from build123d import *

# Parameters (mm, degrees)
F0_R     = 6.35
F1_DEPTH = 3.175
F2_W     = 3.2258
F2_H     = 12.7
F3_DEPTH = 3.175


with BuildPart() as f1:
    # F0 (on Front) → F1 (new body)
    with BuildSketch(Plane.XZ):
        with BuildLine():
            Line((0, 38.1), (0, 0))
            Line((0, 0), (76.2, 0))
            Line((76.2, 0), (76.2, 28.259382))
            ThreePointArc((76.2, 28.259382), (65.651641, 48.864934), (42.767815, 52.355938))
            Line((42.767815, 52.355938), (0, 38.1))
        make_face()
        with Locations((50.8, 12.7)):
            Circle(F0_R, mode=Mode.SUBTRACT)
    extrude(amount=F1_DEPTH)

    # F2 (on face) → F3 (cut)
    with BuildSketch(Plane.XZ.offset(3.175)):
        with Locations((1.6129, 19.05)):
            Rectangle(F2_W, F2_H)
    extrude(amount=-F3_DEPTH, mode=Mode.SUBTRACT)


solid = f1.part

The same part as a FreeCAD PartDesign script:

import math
import FreeCAD as App
import Part
import Sketcher
Q = App.Units.Quantity

doc = App.newDocument("Part")
body = doc.addObject("PartDesign::Body", "Body")

sketch1 = body.newObject("Sketcher::SketchObject", "Sketch")
sketch1.AttachmentSupport = (doc.getObject("XZ_Plane"), [""])
sketch1.MapMode = "FlatFace"
sketch1.addGeometry(Part.LineSegment(App.Vector(0, 38, 0), App.Vector(0, 0, 0)), False)
sketch1.addGeometry(Part.LineSegment(App.Vector(0, 0, 0), App.Vector(76, 0, 0)), False)
sketch1.addGeometry(Part.LineSegment(App.Vector(76, 0, 0), App.Vector(76, 28, 0)), False)
sketch1.addGeometry(Part.ArcOfCircle(Part.Circle(App.Vector(51, 28, 0), App.Vector(0, 0, 1), 25), math.radians(0), math.radians(108)), False)
sketch1.addGeometry(Part.LineSegment(App.Vector(43, 52, 0), App.Vector(0, 38, 0)), False)
sketch1.addGeometry(Part.Circle(App.Vector(51, 13, 0), App.Vector(0, 0, 1), 6), False)
sketch1.addConstraint(Sketcher.Constraint("Coincident", 0, 2, 1, 1))
sketch1.addConstraint(Sketcher.Constraint("Coincident", 1, 2, 2, 1))
sketch1.addConstraint(Sketcher.Constraint("Tangent", 2, 2, 3, 1))
sketch1.addConstraint(Sketcher.Constraint("Tangent", 3, 2, 4, 1))
sketch1.addConstraint(Sketcher.Constraint("Coincident", 4, 2, 0, 1))
sketch1.addConstraint(Sketcher.Constraint("Vertical", 0))
sketch1.addConstraint(Sketcher.Constraint("Horizontal", 1))
sketch1.addConstraint(Sketcher.Constraint("Vertical", 2))
sketch1.addConstraint(Sketcher.Constraint("Coincident", 0, 2, -1, 1))
sketch1.addConstraint(Sketcher.Constraint("Vertical", 3, 3, 5, 3))
sketch1.addConstraint(Sketcher.Constraint("Radius", 3, Q("1 in")))
sketch1.addConstraint(Sketcher.Constraint("Diameter", 5, Q("0.5 in")))
sketch1.addConstraint(Sketcher.Constraint("DistanceX", 1, 1, 1, 2, Q("3 in")))
sketch1.addConstraint(Sketcher.Constraint("DistanceY", 0, 2, 0, 1, Q("1.5 in")))
sketch1.addConstraint(Sketcher.Constraint("DistanceY", 5, 3, 4, 2, Q("1 in")))
sketch1.addConstraint(Sketcher.Constraint("DistanceY", 2, 1, 2, 2, Q("28.259382 mm")))
pad1 = body.newObject("PartDesign::Pad", "Pad")
pad1.Profile = sketch1
pad1.Length = Q("0.125 in")

sketch2 = body.newObject("Sketcher::SketchObject", "Sketch001")
sketch2.AttachmentSupport = (doc.getObject("XZ_Plane"), [""])
sketch2.MapMode = "FlatFace"
sketch2.AttachmentOffset = App.Placement(App.Vector(0, 0, 0.125 * 25.4), App.Rotation())
sketch2.addGeometry(Part.LineSegment(App.Vector(0, 25.4, 0), App.Vector(0, 12.7, 0)), False)
sketch2.addGeometry(Part.LineSegment(App.Vector(0, 12.7, 0), App.Vector(3.2, 12.7, 0)), False)
sketch2.addGeometry(Part.LineSegment(App.Vector(3.2, 12.7, 0), App.Vector(3.2, 25.4, 0)), False)
sketch2.addGeometry(Part.LineSegment(App.Vector(3.2, 25.4, 0), App.Vector(0, 25.4, 0)), False)
sketch2.addConstraint(Sketcher.Constraint("Coincident", 0, 2, 1, 1))
sketch2.addConstraint(Sketcher.Constraint("Coincident", 1, 2, 2, 1))
sketch2.addConstraint(Sketcher.Constraint("Coincident", 2, 2, 3, 1))
sketch2.addConstraint(Sketcher.Constraint("Coincident", 3, 2, 0, 1))
sketch2.addConstraint(Sketcher.Constraint("Vertical", 0))
sketch2.addConstraint(Sketcher.Constraint("Horizontal", 1))
sketch2.addConstraint(Sketcher.Constraint("Vertical", 2))
sketch2.addConstraint(Sketcher.Constraint("Horizontal", 3))
sketch2.addConstraint(Sketcher.Constraint("PointOnObject", 0, 2, -2))
sketch2.addConstraint(Sketcher.Constraint("DistanceY", 0, 2, 0, 1, Q("0.5 in")))
sketch2.addConstraint(Sketcher.Constraint("DistanceY", -1, 1, 2, 2, Q("1 in")))
sketch2.addConstraint(Sketcher.Constraint("DistanceX", 1, 1, 1, 2, Q("0.127 in")))
pocket1 = body.newObject("PartDesign::Pocket", "Pocket")
pocket1.Profile = sketch2
pocket1.Length = Q("0.125 in")

doc.recompute()
